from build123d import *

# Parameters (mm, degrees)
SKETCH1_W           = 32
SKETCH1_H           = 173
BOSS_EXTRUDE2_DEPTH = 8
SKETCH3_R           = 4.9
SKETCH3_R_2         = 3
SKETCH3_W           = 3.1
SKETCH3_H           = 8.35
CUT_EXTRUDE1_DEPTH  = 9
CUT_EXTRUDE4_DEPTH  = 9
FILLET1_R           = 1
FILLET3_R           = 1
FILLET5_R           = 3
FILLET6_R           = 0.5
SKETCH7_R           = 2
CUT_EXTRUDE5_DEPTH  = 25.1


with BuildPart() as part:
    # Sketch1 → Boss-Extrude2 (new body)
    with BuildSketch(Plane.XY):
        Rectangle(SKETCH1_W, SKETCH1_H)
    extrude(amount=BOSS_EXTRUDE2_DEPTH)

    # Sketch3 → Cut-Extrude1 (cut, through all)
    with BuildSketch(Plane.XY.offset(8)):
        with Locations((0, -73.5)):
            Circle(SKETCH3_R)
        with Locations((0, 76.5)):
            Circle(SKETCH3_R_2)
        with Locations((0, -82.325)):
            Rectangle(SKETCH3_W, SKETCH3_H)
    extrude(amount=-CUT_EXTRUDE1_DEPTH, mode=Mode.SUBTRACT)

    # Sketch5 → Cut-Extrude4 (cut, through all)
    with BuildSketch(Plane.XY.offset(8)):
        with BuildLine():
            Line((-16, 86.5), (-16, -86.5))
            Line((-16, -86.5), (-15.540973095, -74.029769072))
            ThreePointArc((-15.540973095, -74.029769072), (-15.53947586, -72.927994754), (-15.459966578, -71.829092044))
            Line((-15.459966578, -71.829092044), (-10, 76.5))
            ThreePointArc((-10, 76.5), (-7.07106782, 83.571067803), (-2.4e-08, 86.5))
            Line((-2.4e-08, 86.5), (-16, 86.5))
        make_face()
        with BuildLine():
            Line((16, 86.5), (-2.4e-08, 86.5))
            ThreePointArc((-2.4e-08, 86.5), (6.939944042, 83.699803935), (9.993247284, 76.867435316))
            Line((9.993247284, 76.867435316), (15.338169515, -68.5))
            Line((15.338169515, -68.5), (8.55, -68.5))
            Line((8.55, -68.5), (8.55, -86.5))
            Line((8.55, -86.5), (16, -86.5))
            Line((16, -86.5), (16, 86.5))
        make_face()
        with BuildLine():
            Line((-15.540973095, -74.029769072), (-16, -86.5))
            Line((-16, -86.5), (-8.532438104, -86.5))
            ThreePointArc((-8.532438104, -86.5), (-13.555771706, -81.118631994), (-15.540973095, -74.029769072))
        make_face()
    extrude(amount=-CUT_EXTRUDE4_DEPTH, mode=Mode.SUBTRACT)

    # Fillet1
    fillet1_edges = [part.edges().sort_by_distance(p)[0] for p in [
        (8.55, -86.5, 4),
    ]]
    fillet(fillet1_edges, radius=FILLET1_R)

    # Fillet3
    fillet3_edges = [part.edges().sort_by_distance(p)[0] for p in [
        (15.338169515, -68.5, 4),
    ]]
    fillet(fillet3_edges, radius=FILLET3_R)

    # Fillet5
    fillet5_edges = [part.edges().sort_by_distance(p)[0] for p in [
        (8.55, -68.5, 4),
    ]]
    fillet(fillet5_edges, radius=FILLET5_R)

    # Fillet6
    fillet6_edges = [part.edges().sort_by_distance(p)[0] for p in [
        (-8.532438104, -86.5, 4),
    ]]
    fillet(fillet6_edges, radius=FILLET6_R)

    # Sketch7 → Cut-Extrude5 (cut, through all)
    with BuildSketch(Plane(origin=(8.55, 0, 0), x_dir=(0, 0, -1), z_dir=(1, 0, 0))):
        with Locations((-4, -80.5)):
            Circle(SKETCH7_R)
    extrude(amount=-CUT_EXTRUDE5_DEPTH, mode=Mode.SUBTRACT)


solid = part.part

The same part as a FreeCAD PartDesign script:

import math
import FreeCAD as App
import Part
import Sketcher
from FreeCAD import Vector
Q = App.Units.Quantity


def edges_at(feature, points):
    """Names of the edges that pass closest to the given points."""
    edges = feature.Shape.Edges
    near = lambda p: min(range(len(edges)), key=lambda i: edges[i].distToShape(Part.Vertex(*p))[0])
    return sorted({f"Edge{near(p) + 1}" for p in points})


def add_polygon(sketch, points):
    """Adds a closed chain of lines whose ends are joined by coincident constraints."""
    first, n = sketch.GeometryCount, len(points)
    for a, b in zip(points, points[1:] + points[:1]):
        sketch.addGeometry(Part.LineSegment(App.Vector(*a, 0), App.Vector(*b, 0)), False)
    for i in range(n):
        sketch.addConstraint(Sketcher.Constraint("Coincident", first + i, 2, first + (i + 1) % n, 1))

doc = App.newDocument("Part")
body = doc.addObject("PartDesign::Body", "Body")

# Sketch on XY plane
sketch1 = doc.addObject("Sketcher::SketchObject", "Sketch")
body.addObject(sketch1)
sketch1.AttachmentSupport = (doc.XY_Plane, [""])
sketch1.MapMode = "FlatFace"
add_polygon(sketch1, [(-16, 86), (-16, -86), (16, -86), (16, 86)])  # lines 0-3
sketch1.addConstraint([
    Sketcher.Constraint("Vertical", 0),
    Sketcher.Constraint("Horizontal", 1),
    Sketcher.Constraint("Vertical", 2),
    Sketcher.Constraint("Horizontal", 3),
    Sketcher.Constraint("Symmetric", 0, 2, 2, 2, -1, 1),
    Sketcher.Constraint("DistanceX", 1, 1, 1, 2, Q("32 mm")),
    Sketcher.Constraint("DistanceY", 0, 2, 0, 1, Q("173 mm")),
])
pad1 = doc.addObject("PartDesign::Pad", "Pad")
body.addObject(pad1)
pad1.Profile = sketch1
pad1.Length = 8

# Sketch on XY plane
sketch2 = doc.addObject("Sketcher::SketchObject", "Sketch001")
body.addObject(sketch2)
sketch2.AttachmentSupport = (doc.XY_Plane, [""])
sketch2.MapMode = "FlatFace"
sketch2.AttachmentOffset = App.Placement(Vector(0, 0, 8), App.Rotation())
sketch2.addGeometry([
    Part.ArcOfCircle(Part.Circle(Vector(0, -73.5, 0), Vector(0, 0, 1), 4.9), math.radians(-72), math.radians(252)),  # 0
    Part.LineSegment(Vector(-1.5452, -78.15, 0), Vector(-1.55, -78.15, 0)),  # 1
    Part.LineSegment(Vector(-1.55, -78.15, 0), Vector(-1.55, -86.5, 0)),  # 2
    Part.LineSegment(Vector(-1.55, -86.5, 0), Vector(1.55, -86.5, 0)),  # 3
    Part.LineSegment(Vector(1.55, -86.5, 0), Vector(1.55, -78.15, 0)),  # 4
    Part.LineSegment(Vector(1.55, -78.15, 0), Vector(1.5452, -78.15, 0)),  # 5
    Part.Circle(Vector(0, 76.5, 0), Vector(0, 0, 1), 3),  # 6
], False)
sketch2.addConstraint([
    Sketcher.Constraint("Coincident", 0, 2, 1, 1),
    Sketcher.Constraint("Coincident", 1, 2, 2, 1),
    Sketcher.Constraint("Coincident", 2, 2, 3, 1),
    Sketcher.Constraint("Coincident", 3, 2, 4, 1),
    Sketcher.Constraint("Coincident", 4, 2, 5, 1),
    Sketcher.Constraint("Coincident", 5, 2, 0, 1),
    Sketcher.Constraint("Horizontal", 1),
    Sketcher.Constraint("Vertical", 2),
    Sketcher.Constraint("Horizontal", 3),
    Sketcher.Constraint("Vertical", 4),
    Sketcher.Constraint("Horizontal", 5),
    Sketcher.Constraint("Symmetric", 1, 2, 4, 2, -2),
    Sketcher.Constraint("PointOnObject", 0, 3, -2),
    Sketcher.Constraint("PointOnObject", 6, 3, -2),
    Sketcher.Constraint("Diameter", 6, Q("6 mm")),
    Sketcher.Constraint("Radius", 0, Q("4.9 mm")),
    Sketcher.Constraint("DistanceX", 3, 1, 3, 2, Q("3.1 mm")),
    Sketcher.Constraint("DistanceY", 0, 3, 6, 3, Q("150 mm")),
    Sketcher.Constraint("DistanceY", 2, 2, 0, 3, Q("13 mm")),
    Sketcher.Constraint("DistanceY", 2, 2, 2, 1, Q("8.35 mm")),
    Sketcher.Constraint("DistanceY", 0, 3, -1, 1, Q("73.5 mm")),
])
pocket1 = doc.addObject("PartDesign::Pocket", "Pocket")
body.addObject(pocket1)
pocket1.Profile = sketch2
pocket1.Type = "ThroughAll"

# Sketch on XY plane
sketch3 = doc.addObject("Sketcher::SketchObject", "Sketch002")
body.addObject(sketch3)
sketch3.AttachmentSupport = (doc.XY_Plane, [""])
sketch3.MapMode = "FlatFace"
sketch3.AttachmentOffset = App.Placement(Vector(0, 0, 8), App.Rotation())
sketch3.addGeometry([
    Part.LineSegment(Vector(-16, 86.5, 0), Vector(-16, -86.5, 0)),  # 0
    Part.LineSegment(Vector(-16, -86.5, 0), Vector(-8.5, -86.5, 0)),  # 1
    Part.ArcOfCircle(Part.Circle(Vector(0, -73.5, 0), Vector(0, 0, 1), 15.6), math.radians(-178), math.radians(-123)),  # 2
    Part.ArcOfCircle(Part.Circle(Vector(0, -73.5, 0), Vector(0, 0, 1), 15.5), math.radians(173.83), math.radians(181.95)),  # 3
    Part.LineSegment(Vector(-15.5, -71.8, 0), Vector(-10, 76.5, 0)),  # 4
    Part.ArcOfCircle(Part.Circle(Vector(0, 76.5, 0), Vector(0, 0, 1), 10), math.radians(90), math.radians(180)),  # 5
    Part.LineSegment(Vector(0, 86.5, 0), Vector(-16, 86.5, 0)),  # 6
    Part.LineSegment(Vector(16, 86.5, 0), Vector(0, 86.5, 0)),  # 7
    Part.ArcOfCircle(Part.Circle(Vector(0, 76.5, 0), Vector(0, 0, 1), 10), math.radians(2), math.radians(90)),  # 8
    Part.LineSegment(Vector(10, 76.9, 0), Vector(15.3, -68.5, 0)),  # 9
    Part.LineSegment(Vector(15.3, -68.5, 0), Vector(8.6, -68.5, 0)),  # 10
    Part.LineSegment(Vector(8.6, -68.5, 0), Vector(8.6, -86.5, 0)),  # 11
    Part.LineSegment(Vector(8.6, -86.5, 0), Vector(16, -86.5, 0)),  # 12
    Part.LineSegment(Vector(16, -86.5, 0), Vector(16, 86.5, 0)),  # 13
], False)
sketch3.addConstraint([
    Sketcher.Constraint("Coincident", 0, 2, 1, 1),
    Sketcher.Constraint("Coincident", 1, 2, 2, 2),
    Sketcher.Constraint("Tangent", 2, 1, 3, 2),
    Sketcher.Constraint("Coincident", 3, 1, 4, 1),
    Sketcher.Constraint("Coincident", 4, 2, 5, 2),
    Sketcher.Constraint("Tangent", 5, 1, 6, 1),
    Sketcher.Constraint("Coincident", 6, 2, 0, 1),
    Sketcher.Constraint("Tangent", 7, 2, 8, 2),
    Sketcher.Constraint("Tangent", 8, 1, 9, 1),
    Sketcher.Constraint("Coincident", 9, 2, 10, 1),
    Sketcher.Constraint("Coincident", 10, 2, 11, 1),
    Sketcher.Constraint("Coincident", 11, 2, 12, 1),
    Sketcher.Constraint("Coincident", 12, 2, 13, 1),
    Sketcher.Constraint("Coincident", 13, 2, 7, 1),
    Sketcher.Constraint("Vertical", 0),
    Sketcher.Constraint("Horizontal", 1),
    Sketcher.Constraint("Horizontal", 6),
    Sketcher.Constraint("Horizontal", 7),
    Sketcher.Constraint("Horizontal", 10),
    Sketcher.Constraint("Vertical", 11),
    Sketcher.Constraint("Horizontal", 12),
    Sketcher.Constraint("Vertical", 13),
    Sketcher.Constraint("Coincident", 8, 3, 5, 3),
    Sketcher.Constraint("Equal", 2, 3),
    Sketcher.Constraint("Equal", 5, 8),
    Sketcher.Constraint("Symmetric", 6, 2, 12, 2, -1, 1),
    Sketcher.Constraint("PointOnObject", 2, 3, -2),
    Sketcher.Constraint("PointOnObject", 5, 3, -2),
    Sketcher.Constraint("Horizontal", 8, 3, 4, 2),
    Sketcher.Constraint("Horizontal", 1, 2, 11, 2),
    Sketcher.Constraint("Radius", 5, Q("10 mm")),
    Sketcher.Constraint("DistanceX", 6, 2, 6, 1, Q("16 mm")),
    Sketcher.Constraint("DistanceY", 0, 2, 0, 1, Q("173 mm")),
    Sketcher.Constraint("DistanceY", 11, 2, 11, 1, Q("18 mm")),
    Sketcher.Constraint("Radius", 2, Q("15.55 mm")),
    Sketcher.Constraint("DistanceY", 2, 3, 5, 3, Q("150 mm")),
    Sketcher.Constraint("DistanceX", 12, 1, 12, 2, Q("7.45 mm")),
    Sketcher.Constraint("DistanceX", 10, 2, 10, 1, Q("6.78817 mm")),
    Sketcher.Constraint("Distance", 4, Q("148.429548 mm")),
    Sketcher.Constraint("DistanceY", 2, 1, -1, 1, Q("74.029769 mm")),
])
pocket2 = doc.addObject("PartDesign::Pocket", "Pocket001")
body.addObject(pocket2)
pocket2.Profile = sketch3
pocket2.Type = "ThroughAll"
doc.recompute()

fillet = doc.addObject("PartDesign::Fillet", "Fillet")
body.addObject(fillet)
fillet.Base = (pocket2, edges_at(pocket2, [(8.55, -86.5, 4)]))
fillet.Radius = 1
doc.recompute()

fillet2 = doc.addObject("PartDesign::Fillet", "Fillet001")
body.addObject(fillet2)
fillet2.Base = (fillet, edges_at(fillet, [(15.338, -68.5, 4)]))
fillet2.Radius = 1
doc.recompute()

fillet3 = doc.addObject("PartDesign::Fillet", "Fillet002")
body.addObject(fillet3)
fillet3.Base = (fillet2, edges_at(fillet2, [(8.55, -68.5, 4)]))
fillet3.Radius = 3
doc.recompute()

fillet4 = doc.addObject("PartDesign::Fillet", "Fillet003")
body.addObject(fillet4)
fillet4.Base = (fillet3, edges_at(fillet3, [(-8.532, -86.5, 4)]))
fillet4.Radius = 0.5

# Sketch on YZ plane
sketch4 = doc.addObject("Sketcher::SketchObject", "Sketch003")
body.addObject(sketch4)
sketch4.AttachmentSupport = (doc.YZ_Plane, [""])
sketch4.MapMode = "FlatFace"
sketch4.AttachmentOffset = App.Placement(Vector(0, 0, 8.55), App.Rotation())
sketch4.addGeometry(Part.Circle(Vector(-80.5, 4, 0), Vector(0, 0, 1), 2), False)
sketch4.addConstraint([
    Sketcher.Constraint("Diameter", 0, Q("4 mm")),
    Sketcher.Constraint("DistanceY", -1, 1, 0, 3, Q("4 mm")),
    Sketcher.Constraint("DistanceX", 0, 3, -1, 1, Q("80.5 mm")),
])
pocket3 = doc.addObject("PartDesign::Pocket", "Pocket002")
body.addObject(pocket3)
pocket3.Profile = sketch4
pocket3.Type = "ThroughAll"

doc.recompute()
